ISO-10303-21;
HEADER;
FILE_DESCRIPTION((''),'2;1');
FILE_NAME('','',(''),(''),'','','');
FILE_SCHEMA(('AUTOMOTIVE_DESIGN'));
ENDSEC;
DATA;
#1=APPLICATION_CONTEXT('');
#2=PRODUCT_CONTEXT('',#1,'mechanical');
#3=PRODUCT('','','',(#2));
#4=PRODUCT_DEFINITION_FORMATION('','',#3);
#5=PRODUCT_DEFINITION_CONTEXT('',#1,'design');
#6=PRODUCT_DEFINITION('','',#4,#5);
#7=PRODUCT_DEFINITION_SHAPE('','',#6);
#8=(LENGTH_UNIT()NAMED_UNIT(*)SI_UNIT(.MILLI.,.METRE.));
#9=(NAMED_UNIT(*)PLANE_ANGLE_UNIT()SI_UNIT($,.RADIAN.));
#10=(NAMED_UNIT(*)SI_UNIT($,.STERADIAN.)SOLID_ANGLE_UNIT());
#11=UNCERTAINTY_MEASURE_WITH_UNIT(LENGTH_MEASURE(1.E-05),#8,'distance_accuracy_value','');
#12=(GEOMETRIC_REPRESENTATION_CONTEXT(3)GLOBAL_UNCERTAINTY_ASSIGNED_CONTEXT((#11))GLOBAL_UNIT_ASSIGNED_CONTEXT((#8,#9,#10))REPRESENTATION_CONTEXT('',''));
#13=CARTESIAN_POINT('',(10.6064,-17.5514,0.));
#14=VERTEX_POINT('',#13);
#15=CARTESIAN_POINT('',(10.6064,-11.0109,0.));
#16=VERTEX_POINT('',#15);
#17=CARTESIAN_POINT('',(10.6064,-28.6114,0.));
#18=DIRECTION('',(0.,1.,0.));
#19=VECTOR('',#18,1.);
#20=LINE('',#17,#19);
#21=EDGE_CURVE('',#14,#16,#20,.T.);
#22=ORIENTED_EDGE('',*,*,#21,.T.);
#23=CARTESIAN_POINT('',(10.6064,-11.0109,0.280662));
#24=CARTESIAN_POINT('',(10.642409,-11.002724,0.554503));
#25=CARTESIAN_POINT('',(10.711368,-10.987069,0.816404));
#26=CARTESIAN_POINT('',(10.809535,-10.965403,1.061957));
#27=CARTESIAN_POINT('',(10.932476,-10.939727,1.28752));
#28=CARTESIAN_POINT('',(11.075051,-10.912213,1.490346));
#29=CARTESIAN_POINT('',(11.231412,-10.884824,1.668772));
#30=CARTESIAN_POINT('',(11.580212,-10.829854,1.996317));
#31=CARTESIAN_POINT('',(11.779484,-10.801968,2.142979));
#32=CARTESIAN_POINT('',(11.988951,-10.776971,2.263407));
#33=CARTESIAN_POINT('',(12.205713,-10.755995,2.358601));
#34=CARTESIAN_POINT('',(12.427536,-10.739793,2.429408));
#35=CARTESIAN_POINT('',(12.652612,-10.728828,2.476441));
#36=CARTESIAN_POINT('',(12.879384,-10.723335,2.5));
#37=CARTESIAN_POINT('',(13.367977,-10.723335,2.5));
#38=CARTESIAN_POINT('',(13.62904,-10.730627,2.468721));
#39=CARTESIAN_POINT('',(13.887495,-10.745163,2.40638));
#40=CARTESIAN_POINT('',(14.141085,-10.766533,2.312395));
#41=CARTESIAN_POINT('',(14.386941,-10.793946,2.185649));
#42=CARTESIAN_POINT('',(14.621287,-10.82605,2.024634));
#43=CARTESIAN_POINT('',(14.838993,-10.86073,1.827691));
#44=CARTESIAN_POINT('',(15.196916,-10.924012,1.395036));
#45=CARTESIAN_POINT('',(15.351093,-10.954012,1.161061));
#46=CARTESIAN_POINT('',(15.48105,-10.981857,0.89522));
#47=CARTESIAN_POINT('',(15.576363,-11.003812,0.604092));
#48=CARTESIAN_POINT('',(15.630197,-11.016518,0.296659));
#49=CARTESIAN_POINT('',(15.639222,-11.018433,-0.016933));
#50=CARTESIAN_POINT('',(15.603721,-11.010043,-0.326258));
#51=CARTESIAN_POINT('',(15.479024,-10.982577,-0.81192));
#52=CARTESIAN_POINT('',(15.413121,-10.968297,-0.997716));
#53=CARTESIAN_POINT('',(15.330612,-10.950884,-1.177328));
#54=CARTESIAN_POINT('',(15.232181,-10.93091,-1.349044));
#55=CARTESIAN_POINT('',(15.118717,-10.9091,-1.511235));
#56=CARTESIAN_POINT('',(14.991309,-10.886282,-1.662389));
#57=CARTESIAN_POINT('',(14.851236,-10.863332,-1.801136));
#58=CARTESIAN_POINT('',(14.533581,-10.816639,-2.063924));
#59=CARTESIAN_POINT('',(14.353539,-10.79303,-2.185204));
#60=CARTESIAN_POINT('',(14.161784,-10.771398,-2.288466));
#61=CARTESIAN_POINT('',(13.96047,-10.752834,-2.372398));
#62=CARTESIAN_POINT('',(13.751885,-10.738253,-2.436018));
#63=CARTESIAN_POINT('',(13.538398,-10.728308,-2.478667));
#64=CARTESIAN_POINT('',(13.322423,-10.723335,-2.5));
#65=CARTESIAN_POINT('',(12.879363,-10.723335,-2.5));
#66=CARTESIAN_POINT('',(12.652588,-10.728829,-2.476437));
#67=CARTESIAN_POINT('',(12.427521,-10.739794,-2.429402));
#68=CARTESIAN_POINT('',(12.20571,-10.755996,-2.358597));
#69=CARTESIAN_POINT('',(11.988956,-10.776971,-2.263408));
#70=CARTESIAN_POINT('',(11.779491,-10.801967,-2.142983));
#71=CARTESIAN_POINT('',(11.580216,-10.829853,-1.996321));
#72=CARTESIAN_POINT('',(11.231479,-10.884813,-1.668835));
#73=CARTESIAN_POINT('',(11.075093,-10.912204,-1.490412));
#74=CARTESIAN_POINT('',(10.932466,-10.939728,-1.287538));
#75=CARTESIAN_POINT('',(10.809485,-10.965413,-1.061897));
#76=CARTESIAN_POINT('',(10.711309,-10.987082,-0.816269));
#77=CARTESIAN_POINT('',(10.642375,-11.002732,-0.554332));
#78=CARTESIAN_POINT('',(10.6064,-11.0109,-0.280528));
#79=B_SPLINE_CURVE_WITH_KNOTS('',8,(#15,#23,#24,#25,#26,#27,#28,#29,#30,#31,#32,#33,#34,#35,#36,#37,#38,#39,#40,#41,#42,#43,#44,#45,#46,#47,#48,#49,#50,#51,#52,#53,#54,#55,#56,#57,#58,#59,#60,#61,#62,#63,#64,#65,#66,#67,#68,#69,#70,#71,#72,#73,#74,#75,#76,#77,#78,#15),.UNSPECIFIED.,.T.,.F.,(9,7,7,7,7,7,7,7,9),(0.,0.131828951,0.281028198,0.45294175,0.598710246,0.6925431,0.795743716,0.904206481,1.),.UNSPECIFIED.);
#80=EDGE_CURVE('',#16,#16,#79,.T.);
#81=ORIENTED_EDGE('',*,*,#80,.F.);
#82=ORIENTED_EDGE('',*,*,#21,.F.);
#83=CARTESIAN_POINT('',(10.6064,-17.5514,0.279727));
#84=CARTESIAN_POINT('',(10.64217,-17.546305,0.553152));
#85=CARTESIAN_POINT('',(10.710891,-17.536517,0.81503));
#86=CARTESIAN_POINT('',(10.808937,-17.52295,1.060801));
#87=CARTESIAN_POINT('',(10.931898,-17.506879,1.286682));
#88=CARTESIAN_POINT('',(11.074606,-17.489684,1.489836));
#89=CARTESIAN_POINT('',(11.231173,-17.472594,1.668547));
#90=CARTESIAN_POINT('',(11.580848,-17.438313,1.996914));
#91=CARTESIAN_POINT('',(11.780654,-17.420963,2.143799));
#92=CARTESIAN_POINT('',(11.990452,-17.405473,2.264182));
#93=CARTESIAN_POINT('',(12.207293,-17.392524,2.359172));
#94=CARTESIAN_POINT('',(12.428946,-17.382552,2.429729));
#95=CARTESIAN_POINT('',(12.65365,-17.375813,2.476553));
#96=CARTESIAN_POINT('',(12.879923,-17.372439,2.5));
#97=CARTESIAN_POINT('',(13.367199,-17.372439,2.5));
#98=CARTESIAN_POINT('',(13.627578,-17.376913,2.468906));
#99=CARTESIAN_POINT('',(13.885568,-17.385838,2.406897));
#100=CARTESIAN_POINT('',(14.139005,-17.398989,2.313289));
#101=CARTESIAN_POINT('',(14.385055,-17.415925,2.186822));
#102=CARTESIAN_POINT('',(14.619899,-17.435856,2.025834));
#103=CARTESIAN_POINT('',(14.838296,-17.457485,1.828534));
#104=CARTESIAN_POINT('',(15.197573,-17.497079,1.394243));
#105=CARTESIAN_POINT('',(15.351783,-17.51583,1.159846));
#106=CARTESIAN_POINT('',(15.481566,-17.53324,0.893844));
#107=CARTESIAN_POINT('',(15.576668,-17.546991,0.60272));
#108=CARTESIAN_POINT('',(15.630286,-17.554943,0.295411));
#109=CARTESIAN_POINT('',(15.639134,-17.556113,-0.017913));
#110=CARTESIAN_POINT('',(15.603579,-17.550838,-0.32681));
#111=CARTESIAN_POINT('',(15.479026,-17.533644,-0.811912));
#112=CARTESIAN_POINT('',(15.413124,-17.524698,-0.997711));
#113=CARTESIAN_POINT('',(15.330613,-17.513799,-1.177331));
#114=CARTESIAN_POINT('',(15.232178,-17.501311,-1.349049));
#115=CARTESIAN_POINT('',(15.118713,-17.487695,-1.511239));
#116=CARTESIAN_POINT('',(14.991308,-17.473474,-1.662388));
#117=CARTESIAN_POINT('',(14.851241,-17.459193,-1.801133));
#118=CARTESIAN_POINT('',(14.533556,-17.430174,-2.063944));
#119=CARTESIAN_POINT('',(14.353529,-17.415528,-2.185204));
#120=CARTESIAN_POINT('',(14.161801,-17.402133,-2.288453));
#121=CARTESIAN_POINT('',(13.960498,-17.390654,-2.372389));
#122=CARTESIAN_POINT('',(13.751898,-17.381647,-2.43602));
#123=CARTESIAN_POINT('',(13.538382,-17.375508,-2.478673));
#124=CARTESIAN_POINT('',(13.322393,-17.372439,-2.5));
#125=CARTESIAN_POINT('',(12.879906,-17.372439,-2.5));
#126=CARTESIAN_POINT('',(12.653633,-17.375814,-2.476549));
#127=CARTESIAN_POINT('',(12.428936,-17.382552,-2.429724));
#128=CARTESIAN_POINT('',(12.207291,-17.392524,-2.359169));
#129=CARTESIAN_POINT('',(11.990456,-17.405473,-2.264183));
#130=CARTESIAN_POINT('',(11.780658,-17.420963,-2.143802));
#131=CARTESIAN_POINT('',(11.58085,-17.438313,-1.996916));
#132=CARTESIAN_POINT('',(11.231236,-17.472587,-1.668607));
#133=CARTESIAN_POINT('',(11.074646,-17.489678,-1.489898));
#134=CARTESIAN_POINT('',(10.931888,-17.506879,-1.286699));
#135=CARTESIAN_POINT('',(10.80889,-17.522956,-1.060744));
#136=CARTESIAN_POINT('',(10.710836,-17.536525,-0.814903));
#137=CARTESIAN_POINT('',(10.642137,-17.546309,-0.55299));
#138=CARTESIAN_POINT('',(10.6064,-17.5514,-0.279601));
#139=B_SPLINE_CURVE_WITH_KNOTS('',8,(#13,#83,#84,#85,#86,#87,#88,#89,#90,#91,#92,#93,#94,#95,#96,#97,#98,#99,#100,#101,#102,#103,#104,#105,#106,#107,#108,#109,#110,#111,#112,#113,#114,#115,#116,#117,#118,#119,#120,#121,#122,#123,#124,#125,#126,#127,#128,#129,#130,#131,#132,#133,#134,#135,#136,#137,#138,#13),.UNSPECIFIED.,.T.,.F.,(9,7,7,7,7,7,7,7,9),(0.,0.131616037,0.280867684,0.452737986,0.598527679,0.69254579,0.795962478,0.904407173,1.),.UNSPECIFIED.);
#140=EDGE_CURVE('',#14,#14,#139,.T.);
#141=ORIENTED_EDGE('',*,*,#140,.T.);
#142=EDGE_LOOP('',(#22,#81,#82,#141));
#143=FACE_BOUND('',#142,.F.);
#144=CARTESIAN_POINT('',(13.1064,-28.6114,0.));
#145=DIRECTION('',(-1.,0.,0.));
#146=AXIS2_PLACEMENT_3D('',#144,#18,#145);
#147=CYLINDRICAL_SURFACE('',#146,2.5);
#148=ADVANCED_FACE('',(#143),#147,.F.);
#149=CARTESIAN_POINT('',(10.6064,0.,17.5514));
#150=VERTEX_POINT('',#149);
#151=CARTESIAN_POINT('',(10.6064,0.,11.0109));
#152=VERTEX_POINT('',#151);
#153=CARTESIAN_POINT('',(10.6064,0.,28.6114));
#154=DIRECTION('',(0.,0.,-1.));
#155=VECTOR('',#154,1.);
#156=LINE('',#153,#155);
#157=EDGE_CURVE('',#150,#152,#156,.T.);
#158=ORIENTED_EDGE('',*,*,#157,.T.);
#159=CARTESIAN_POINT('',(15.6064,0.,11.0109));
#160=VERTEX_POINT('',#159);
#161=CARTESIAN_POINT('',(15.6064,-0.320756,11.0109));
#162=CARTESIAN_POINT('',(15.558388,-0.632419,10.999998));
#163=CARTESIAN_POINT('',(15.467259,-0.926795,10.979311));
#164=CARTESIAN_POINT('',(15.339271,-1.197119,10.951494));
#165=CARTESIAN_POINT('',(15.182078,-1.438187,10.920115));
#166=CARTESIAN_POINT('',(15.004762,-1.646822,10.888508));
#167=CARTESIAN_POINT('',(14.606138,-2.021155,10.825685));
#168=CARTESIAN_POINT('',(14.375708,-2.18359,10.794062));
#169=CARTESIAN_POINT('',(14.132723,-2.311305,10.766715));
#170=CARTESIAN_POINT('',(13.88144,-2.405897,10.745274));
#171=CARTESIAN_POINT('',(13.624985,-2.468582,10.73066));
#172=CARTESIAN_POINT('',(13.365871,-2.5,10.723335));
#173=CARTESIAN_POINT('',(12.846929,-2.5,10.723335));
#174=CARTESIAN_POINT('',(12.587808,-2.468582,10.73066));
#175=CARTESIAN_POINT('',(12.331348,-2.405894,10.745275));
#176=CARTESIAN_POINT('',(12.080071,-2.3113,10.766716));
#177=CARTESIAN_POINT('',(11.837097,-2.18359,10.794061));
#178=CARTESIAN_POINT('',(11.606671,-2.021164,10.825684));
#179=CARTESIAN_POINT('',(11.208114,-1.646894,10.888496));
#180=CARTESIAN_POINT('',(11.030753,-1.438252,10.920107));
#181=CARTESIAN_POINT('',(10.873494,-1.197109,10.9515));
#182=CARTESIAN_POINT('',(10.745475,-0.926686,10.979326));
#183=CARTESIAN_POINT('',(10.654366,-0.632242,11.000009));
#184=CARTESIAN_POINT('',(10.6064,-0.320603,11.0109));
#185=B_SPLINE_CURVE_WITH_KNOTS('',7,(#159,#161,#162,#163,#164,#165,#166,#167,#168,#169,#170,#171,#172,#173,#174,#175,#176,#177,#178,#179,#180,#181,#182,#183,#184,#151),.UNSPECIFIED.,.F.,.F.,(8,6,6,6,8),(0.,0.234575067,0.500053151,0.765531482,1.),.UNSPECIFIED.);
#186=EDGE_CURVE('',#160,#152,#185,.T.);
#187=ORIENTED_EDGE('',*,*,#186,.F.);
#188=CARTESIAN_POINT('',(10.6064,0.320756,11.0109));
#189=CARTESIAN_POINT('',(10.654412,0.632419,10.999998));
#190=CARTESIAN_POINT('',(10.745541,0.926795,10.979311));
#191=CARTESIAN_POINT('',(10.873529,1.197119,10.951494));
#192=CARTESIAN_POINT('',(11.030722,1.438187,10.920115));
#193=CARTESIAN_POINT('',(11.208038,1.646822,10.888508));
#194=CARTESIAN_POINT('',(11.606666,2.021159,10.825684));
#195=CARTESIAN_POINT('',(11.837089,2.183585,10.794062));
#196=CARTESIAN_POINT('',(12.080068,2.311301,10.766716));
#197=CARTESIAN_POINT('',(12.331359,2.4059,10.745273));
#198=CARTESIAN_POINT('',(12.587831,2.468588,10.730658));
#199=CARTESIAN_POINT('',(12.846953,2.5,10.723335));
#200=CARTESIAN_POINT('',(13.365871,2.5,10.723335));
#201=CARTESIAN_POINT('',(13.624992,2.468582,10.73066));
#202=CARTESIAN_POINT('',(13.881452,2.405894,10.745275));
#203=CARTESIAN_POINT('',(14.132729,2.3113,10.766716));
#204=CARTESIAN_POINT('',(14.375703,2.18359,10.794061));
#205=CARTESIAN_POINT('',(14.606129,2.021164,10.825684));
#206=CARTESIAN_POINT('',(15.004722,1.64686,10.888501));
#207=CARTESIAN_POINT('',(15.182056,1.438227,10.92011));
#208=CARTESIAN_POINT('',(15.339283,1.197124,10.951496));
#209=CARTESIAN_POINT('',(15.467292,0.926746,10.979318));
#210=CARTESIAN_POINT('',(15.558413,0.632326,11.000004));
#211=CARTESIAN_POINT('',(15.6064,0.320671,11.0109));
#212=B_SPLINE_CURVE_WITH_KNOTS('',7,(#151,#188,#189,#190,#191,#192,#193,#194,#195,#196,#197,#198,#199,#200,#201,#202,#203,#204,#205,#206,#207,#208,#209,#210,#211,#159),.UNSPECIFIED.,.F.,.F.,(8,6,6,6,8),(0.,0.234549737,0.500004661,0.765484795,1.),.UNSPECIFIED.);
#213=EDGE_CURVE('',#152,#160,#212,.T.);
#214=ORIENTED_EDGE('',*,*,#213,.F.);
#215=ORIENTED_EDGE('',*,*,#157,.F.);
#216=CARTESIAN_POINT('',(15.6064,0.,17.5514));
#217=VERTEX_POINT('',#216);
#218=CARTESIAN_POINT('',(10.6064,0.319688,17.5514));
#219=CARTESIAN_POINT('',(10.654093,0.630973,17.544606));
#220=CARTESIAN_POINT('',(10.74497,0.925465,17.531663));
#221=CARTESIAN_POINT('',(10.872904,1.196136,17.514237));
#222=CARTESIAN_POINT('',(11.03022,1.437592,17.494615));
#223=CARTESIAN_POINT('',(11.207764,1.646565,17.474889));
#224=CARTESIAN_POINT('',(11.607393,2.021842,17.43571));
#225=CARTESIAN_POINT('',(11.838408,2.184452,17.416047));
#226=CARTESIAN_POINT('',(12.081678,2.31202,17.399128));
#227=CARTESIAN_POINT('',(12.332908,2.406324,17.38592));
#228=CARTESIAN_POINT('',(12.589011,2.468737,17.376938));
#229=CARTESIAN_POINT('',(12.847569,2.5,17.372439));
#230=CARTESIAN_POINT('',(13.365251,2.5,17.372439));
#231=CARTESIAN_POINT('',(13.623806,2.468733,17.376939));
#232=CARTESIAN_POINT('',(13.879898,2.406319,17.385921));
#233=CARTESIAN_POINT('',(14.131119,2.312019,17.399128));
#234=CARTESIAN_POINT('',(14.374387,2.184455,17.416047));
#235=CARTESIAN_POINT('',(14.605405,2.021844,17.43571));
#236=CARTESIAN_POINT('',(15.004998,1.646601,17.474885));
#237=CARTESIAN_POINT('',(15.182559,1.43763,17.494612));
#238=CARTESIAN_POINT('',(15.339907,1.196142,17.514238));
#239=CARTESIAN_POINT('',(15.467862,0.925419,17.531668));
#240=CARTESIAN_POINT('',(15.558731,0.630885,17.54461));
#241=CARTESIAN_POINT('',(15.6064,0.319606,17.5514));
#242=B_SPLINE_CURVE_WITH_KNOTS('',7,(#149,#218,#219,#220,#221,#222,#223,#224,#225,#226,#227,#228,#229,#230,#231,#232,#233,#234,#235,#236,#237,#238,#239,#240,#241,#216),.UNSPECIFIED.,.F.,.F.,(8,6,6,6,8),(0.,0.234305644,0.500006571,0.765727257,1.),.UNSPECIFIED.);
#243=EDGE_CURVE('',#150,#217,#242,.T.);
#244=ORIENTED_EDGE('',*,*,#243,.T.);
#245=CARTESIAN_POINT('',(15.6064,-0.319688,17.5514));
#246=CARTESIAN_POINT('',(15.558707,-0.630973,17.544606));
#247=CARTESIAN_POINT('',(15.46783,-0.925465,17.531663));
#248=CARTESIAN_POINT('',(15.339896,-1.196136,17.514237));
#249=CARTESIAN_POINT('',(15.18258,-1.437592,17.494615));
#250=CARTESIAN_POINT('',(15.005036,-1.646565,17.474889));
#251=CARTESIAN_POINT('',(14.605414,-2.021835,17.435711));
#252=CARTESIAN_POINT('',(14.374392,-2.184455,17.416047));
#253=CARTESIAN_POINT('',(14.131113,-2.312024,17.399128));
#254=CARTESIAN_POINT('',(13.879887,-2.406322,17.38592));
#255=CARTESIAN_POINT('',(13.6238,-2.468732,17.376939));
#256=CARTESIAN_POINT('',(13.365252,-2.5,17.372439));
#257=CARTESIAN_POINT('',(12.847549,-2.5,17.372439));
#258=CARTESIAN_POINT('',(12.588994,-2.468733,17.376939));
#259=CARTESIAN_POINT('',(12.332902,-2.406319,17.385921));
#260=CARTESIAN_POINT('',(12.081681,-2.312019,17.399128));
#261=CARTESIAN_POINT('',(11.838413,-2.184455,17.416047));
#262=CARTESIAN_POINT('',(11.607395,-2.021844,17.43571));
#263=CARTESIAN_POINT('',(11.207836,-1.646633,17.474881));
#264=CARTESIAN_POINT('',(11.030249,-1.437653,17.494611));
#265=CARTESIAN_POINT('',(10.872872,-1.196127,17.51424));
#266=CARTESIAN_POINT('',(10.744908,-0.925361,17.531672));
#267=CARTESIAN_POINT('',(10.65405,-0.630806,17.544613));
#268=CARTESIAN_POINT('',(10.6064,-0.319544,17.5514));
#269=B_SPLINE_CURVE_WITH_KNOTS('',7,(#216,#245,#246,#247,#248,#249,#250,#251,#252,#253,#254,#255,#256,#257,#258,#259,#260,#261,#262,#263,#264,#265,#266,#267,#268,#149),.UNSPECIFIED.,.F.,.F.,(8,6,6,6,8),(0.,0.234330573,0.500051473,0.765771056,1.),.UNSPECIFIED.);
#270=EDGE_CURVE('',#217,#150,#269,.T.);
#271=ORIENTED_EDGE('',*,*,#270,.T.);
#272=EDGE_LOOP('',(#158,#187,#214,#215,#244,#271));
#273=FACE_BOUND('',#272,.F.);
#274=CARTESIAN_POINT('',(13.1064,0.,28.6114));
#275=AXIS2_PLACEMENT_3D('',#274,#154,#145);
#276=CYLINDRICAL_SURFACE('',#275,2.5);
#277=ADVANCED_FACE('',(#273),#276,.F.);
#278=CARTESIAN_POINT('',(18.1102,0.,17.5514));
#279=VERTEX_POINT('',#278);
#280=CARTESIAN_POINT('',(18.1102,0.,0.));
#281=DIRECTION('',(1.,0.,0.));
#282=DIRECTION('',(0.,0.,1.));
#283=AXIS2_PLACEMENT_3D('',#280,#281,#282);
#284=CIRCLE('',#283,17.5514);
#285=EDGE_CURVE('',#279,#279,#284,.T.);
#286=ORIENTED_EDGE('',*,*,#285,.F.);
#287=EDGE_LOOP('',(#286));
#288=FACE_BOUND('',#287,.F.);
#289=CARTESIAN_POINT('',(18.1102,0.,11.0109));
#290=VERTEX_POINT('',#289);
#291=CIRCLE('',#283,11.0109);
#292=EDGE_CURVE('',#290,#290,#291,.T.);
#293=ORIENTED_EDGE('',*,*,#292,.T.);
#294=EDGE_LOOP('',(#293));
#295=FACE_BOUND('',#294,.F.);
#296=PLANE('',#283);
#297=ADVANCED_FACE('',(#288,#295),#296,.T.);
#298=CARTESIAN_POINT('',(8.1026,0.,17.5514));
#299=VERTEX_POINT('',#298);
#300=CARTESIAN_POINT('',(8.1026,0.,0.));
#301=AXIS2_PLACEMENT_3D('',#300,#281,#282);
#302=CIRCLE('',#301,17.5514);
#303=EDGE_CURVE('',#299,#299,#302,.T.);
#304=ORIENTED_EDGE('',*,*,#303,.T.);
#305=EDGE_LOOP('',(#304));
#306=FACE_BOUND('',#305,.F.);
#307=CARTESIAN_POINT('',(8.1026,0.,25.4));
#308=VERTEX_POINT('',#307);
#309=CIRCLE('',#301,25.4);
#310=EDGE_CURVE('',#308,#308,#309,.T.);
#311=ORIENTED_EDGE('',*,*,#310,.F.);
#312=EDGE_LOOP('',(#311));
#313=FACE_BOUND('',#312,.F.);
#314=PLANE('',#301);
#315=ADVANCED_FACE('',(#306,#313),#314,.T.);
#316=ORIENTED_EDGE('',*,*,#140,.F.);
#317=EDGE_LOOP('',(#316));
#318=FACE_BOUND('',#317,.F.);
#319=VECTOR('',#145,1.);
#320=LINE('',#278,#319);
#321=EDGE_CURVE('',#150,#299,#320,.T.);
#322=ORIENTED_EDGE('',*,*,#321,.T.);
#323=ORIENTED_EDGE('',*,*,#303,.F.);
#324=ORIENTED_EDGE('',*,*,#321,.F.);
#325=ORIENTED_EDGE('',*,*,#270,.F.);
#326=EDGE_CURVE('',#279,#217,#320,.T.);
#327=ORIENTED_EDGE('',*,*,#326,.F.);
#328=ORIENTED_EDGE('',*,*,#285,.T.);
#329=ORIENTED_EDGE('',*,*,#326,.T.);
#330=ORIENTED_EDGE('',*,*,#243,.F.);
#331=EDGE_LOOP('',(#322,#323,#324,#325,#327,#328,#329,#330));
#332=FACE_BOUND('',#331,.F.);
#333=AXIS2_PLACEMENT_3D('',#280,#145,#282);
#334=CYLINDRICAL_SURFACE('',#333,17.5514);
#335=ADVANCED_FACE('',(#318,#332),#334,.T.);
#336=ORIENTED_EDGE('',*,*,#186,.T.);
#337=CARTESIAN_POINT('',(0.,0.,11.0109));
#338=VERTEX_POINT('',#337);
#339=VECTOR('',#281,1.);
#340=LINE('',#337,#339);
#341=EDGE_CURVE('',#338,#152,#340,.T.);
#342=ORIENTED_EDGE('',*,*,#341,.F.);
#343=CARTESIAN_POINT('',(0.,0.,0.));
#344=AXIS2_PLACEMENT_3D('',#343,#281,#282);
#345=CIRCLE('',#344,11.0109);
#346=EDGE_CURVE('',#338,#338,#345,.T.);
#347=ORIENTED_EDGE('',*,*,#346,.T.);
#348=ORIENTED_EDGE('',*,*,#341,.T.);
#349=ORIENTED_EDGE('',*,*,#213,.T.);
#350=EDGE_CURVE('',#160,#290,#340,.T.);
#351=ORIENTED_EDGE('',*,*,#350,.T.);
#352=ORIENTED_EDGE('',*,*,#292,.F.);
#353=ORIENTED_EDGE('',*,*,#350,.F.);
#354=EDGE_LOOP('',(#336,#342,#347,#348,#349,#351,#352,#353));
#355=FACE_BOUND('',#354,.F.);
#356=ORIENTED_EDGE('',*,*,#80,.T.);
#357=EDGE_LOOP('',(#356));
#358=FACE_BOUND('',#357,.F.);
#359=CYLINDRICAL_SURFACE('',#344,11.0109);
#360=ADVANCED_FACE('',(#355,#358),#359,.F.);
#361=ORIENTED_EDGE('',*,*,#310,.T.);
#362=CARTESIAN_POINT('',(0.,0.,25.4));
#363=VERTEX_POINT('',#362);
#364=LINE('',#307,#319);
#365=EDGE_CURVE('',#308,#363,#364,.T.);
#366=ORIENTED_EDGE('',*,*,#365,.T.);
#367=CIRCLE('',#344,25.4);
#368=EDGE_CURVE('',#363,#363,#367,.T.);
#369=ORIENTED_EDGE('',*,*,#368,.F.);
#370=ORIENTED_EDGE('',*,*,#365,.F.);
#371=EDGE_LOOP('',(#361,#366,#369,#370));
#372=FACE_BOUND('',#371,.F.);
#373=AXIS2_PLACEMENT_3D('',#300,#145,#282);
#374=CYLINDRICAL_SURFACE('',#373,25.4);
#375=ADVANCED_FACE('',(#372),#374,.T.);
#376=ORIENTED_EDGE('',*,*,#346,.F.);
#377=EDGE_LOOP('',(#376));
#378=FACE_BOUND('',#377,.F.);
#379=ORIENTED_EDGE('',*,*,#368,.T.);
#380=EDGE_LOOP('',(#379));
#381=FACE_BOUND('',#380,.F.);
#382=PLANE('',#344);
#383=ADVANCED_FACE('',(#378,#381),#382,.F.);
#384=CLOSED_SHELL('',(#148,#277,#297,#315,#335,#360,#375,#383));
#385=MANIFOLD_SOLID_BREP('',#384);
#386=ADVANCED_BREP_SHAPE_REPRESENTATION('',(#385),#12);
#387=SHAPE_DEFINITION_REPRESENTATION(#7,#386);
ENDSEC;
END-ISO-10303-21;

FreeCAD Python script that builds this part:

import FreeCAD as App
import Part
import Sketcher
Q = App.Units.Quantity


def add_polygon(sketch, points):
    """Adds a closed chain of lines whose ends are joined by coincident constraints."""
    first, n = sketch.GeometryCount, len(points)
    for a, b in zip(points, points[1:] + points[:1]):
        sketch.addGeometry(Part.LineSegment(App.Vector(*a, 0), App.Vector(*b, 0)), False)
    for i in range(n):
        sketch.addConstraint(Sketcher.Constraint("Coincident", first + i, 2, first + (i + 1) % n, 1))

doc = App.newDocument("Part")
body = doc.addObject("PartDesign::Body", "Body")

# Sketch on XZ plane
sketch1 = body.newObject("Sketcher::SketchObject", "Sketch")
sketch1.AttachmentSupport = (doc.getObject("XZ_Plane"), [""])
sketch1.MapMode = "FlatFace"
add_polygon(sketch1, [(0, 25.4), (0, 11.0109), (18.1102, 11.0109), (18.1102, 17.5514), (8.1026, 17.5514), (8.1026, 25.4)])  # lines 0-5
sketch1.addConstraint([
    Sketcher.Constraint("Vertical", 0),
    Sketcher.Constraint("Horizontal", 1),
    Sketcher.Constraint("Vertical", 2),
    Sketcher.Constraint("Horizontal", 3),
    Sketcher.Constraint("Vertical", 4),
    Sketcher.Constraint("Horizontal", 5),
    Sketcher.Constraint("PointOnObject", 0, 2, -2),
    Sketcher.Constraint("DistanceY", -1, 1, 4, 2, Q("1 in")),
    Sketcher.Constraint("DistanceX", 1, 1, 1, 2, Q("0.713 in")),
    Sketcher.Constraint("DistanceX", 3, 2, 3, 1, Q("0.394 in")),
    Sketcher.Constraint("DistanceY", 4, 1, 4, 2, Q("0.309 in")),
    Sketcher.Constraint("DistanceY", 0, 2, 0, 1, Q("0.5665 in")),
])
revolution = body.newObject("PartDesign::Revolution", "Revolution")
revolution.Profile = sketch1
revolution.ReferenceAxis = (sketch1, ["H_Axis"])
revolution.Angle = 360

# Sketch on XZ plane
sketch2 = body.newObject("Sketcher::SketchObject", "Sketch001")
sketch2.AttachmentSupport = (doc.getObject("XZ_Plane"), [""])
sketch2.MapMode = "FlatFace"
sketch2.AttachmentOffset = App.Placement(App.Vector(0, 0, 0.691 * 25.4), App.Rotation())
sketch2.addGeometry(Part.Circle(App.Vector(13.1064, 0, 0), App.Vector(0, 0, 1), 2.5), False)
sketch2.addConstraint([
    Sketcher.Constraint("PointOnObject", 0, 3, -1),
    Sketcher.Constraint("Diameter", 0, Q("5 mm")),
    Sketcher.Constraint("DistanceX", -1, 1, 0, 3, Q("0.516 in")),
])
doc.recompute()
hole = body.newObject("PartDesign::Hole", "Hole")
hole.Profile = sketch2
hole.ThreadType = "None"
hole.Diameter = 5
hole.DepthType = "Dimension"
hole.Depth = 11.06
hole.DrillPoint = "Angled"
hole.DrillPointAngle = 118

# Sketch on XY plane
sketch3 = body.newObject("Sketcher::SketchObject", "Sketch002")
sketch3.AttachmentSupport = (doc.getObject("XY_Plane"), [""])
sketch3.MapMode = "FlatFace"
sketch3.AttachmentOffset = App.Placement(App.Vector(0, 0, 0.691 * 25.4), App.Rotation())
sketch3.addGeometry(Part.Circle(App.Vector(13.1064, 0, 0), App.Vector(0, 0, 1), 2.5), False)
sketch3.addConstraint([
    Sketcher.Constraint("PointOnObject", 0, 3, -1),
    Sketcher.Constraint("Diameter", 0, Q("5 mm")),
    Sketcher.Constraint("DistanceX", -1, 1, 0, 3, Q("0.516 in")),
])
doc.recompute()
hole2 = body.newObject("PartDesign::Hole", "Hole001")
hole2.Profile = sketch3
hole2.ThreadType = "None"
hole2.Diameter = 5
hole2.DepthType = "Dimension"
hole2.Depth = 11.06
hole2.DrillPoint = "Angled"
hole2.DrillPointAngle = 118

doc.recompute()
